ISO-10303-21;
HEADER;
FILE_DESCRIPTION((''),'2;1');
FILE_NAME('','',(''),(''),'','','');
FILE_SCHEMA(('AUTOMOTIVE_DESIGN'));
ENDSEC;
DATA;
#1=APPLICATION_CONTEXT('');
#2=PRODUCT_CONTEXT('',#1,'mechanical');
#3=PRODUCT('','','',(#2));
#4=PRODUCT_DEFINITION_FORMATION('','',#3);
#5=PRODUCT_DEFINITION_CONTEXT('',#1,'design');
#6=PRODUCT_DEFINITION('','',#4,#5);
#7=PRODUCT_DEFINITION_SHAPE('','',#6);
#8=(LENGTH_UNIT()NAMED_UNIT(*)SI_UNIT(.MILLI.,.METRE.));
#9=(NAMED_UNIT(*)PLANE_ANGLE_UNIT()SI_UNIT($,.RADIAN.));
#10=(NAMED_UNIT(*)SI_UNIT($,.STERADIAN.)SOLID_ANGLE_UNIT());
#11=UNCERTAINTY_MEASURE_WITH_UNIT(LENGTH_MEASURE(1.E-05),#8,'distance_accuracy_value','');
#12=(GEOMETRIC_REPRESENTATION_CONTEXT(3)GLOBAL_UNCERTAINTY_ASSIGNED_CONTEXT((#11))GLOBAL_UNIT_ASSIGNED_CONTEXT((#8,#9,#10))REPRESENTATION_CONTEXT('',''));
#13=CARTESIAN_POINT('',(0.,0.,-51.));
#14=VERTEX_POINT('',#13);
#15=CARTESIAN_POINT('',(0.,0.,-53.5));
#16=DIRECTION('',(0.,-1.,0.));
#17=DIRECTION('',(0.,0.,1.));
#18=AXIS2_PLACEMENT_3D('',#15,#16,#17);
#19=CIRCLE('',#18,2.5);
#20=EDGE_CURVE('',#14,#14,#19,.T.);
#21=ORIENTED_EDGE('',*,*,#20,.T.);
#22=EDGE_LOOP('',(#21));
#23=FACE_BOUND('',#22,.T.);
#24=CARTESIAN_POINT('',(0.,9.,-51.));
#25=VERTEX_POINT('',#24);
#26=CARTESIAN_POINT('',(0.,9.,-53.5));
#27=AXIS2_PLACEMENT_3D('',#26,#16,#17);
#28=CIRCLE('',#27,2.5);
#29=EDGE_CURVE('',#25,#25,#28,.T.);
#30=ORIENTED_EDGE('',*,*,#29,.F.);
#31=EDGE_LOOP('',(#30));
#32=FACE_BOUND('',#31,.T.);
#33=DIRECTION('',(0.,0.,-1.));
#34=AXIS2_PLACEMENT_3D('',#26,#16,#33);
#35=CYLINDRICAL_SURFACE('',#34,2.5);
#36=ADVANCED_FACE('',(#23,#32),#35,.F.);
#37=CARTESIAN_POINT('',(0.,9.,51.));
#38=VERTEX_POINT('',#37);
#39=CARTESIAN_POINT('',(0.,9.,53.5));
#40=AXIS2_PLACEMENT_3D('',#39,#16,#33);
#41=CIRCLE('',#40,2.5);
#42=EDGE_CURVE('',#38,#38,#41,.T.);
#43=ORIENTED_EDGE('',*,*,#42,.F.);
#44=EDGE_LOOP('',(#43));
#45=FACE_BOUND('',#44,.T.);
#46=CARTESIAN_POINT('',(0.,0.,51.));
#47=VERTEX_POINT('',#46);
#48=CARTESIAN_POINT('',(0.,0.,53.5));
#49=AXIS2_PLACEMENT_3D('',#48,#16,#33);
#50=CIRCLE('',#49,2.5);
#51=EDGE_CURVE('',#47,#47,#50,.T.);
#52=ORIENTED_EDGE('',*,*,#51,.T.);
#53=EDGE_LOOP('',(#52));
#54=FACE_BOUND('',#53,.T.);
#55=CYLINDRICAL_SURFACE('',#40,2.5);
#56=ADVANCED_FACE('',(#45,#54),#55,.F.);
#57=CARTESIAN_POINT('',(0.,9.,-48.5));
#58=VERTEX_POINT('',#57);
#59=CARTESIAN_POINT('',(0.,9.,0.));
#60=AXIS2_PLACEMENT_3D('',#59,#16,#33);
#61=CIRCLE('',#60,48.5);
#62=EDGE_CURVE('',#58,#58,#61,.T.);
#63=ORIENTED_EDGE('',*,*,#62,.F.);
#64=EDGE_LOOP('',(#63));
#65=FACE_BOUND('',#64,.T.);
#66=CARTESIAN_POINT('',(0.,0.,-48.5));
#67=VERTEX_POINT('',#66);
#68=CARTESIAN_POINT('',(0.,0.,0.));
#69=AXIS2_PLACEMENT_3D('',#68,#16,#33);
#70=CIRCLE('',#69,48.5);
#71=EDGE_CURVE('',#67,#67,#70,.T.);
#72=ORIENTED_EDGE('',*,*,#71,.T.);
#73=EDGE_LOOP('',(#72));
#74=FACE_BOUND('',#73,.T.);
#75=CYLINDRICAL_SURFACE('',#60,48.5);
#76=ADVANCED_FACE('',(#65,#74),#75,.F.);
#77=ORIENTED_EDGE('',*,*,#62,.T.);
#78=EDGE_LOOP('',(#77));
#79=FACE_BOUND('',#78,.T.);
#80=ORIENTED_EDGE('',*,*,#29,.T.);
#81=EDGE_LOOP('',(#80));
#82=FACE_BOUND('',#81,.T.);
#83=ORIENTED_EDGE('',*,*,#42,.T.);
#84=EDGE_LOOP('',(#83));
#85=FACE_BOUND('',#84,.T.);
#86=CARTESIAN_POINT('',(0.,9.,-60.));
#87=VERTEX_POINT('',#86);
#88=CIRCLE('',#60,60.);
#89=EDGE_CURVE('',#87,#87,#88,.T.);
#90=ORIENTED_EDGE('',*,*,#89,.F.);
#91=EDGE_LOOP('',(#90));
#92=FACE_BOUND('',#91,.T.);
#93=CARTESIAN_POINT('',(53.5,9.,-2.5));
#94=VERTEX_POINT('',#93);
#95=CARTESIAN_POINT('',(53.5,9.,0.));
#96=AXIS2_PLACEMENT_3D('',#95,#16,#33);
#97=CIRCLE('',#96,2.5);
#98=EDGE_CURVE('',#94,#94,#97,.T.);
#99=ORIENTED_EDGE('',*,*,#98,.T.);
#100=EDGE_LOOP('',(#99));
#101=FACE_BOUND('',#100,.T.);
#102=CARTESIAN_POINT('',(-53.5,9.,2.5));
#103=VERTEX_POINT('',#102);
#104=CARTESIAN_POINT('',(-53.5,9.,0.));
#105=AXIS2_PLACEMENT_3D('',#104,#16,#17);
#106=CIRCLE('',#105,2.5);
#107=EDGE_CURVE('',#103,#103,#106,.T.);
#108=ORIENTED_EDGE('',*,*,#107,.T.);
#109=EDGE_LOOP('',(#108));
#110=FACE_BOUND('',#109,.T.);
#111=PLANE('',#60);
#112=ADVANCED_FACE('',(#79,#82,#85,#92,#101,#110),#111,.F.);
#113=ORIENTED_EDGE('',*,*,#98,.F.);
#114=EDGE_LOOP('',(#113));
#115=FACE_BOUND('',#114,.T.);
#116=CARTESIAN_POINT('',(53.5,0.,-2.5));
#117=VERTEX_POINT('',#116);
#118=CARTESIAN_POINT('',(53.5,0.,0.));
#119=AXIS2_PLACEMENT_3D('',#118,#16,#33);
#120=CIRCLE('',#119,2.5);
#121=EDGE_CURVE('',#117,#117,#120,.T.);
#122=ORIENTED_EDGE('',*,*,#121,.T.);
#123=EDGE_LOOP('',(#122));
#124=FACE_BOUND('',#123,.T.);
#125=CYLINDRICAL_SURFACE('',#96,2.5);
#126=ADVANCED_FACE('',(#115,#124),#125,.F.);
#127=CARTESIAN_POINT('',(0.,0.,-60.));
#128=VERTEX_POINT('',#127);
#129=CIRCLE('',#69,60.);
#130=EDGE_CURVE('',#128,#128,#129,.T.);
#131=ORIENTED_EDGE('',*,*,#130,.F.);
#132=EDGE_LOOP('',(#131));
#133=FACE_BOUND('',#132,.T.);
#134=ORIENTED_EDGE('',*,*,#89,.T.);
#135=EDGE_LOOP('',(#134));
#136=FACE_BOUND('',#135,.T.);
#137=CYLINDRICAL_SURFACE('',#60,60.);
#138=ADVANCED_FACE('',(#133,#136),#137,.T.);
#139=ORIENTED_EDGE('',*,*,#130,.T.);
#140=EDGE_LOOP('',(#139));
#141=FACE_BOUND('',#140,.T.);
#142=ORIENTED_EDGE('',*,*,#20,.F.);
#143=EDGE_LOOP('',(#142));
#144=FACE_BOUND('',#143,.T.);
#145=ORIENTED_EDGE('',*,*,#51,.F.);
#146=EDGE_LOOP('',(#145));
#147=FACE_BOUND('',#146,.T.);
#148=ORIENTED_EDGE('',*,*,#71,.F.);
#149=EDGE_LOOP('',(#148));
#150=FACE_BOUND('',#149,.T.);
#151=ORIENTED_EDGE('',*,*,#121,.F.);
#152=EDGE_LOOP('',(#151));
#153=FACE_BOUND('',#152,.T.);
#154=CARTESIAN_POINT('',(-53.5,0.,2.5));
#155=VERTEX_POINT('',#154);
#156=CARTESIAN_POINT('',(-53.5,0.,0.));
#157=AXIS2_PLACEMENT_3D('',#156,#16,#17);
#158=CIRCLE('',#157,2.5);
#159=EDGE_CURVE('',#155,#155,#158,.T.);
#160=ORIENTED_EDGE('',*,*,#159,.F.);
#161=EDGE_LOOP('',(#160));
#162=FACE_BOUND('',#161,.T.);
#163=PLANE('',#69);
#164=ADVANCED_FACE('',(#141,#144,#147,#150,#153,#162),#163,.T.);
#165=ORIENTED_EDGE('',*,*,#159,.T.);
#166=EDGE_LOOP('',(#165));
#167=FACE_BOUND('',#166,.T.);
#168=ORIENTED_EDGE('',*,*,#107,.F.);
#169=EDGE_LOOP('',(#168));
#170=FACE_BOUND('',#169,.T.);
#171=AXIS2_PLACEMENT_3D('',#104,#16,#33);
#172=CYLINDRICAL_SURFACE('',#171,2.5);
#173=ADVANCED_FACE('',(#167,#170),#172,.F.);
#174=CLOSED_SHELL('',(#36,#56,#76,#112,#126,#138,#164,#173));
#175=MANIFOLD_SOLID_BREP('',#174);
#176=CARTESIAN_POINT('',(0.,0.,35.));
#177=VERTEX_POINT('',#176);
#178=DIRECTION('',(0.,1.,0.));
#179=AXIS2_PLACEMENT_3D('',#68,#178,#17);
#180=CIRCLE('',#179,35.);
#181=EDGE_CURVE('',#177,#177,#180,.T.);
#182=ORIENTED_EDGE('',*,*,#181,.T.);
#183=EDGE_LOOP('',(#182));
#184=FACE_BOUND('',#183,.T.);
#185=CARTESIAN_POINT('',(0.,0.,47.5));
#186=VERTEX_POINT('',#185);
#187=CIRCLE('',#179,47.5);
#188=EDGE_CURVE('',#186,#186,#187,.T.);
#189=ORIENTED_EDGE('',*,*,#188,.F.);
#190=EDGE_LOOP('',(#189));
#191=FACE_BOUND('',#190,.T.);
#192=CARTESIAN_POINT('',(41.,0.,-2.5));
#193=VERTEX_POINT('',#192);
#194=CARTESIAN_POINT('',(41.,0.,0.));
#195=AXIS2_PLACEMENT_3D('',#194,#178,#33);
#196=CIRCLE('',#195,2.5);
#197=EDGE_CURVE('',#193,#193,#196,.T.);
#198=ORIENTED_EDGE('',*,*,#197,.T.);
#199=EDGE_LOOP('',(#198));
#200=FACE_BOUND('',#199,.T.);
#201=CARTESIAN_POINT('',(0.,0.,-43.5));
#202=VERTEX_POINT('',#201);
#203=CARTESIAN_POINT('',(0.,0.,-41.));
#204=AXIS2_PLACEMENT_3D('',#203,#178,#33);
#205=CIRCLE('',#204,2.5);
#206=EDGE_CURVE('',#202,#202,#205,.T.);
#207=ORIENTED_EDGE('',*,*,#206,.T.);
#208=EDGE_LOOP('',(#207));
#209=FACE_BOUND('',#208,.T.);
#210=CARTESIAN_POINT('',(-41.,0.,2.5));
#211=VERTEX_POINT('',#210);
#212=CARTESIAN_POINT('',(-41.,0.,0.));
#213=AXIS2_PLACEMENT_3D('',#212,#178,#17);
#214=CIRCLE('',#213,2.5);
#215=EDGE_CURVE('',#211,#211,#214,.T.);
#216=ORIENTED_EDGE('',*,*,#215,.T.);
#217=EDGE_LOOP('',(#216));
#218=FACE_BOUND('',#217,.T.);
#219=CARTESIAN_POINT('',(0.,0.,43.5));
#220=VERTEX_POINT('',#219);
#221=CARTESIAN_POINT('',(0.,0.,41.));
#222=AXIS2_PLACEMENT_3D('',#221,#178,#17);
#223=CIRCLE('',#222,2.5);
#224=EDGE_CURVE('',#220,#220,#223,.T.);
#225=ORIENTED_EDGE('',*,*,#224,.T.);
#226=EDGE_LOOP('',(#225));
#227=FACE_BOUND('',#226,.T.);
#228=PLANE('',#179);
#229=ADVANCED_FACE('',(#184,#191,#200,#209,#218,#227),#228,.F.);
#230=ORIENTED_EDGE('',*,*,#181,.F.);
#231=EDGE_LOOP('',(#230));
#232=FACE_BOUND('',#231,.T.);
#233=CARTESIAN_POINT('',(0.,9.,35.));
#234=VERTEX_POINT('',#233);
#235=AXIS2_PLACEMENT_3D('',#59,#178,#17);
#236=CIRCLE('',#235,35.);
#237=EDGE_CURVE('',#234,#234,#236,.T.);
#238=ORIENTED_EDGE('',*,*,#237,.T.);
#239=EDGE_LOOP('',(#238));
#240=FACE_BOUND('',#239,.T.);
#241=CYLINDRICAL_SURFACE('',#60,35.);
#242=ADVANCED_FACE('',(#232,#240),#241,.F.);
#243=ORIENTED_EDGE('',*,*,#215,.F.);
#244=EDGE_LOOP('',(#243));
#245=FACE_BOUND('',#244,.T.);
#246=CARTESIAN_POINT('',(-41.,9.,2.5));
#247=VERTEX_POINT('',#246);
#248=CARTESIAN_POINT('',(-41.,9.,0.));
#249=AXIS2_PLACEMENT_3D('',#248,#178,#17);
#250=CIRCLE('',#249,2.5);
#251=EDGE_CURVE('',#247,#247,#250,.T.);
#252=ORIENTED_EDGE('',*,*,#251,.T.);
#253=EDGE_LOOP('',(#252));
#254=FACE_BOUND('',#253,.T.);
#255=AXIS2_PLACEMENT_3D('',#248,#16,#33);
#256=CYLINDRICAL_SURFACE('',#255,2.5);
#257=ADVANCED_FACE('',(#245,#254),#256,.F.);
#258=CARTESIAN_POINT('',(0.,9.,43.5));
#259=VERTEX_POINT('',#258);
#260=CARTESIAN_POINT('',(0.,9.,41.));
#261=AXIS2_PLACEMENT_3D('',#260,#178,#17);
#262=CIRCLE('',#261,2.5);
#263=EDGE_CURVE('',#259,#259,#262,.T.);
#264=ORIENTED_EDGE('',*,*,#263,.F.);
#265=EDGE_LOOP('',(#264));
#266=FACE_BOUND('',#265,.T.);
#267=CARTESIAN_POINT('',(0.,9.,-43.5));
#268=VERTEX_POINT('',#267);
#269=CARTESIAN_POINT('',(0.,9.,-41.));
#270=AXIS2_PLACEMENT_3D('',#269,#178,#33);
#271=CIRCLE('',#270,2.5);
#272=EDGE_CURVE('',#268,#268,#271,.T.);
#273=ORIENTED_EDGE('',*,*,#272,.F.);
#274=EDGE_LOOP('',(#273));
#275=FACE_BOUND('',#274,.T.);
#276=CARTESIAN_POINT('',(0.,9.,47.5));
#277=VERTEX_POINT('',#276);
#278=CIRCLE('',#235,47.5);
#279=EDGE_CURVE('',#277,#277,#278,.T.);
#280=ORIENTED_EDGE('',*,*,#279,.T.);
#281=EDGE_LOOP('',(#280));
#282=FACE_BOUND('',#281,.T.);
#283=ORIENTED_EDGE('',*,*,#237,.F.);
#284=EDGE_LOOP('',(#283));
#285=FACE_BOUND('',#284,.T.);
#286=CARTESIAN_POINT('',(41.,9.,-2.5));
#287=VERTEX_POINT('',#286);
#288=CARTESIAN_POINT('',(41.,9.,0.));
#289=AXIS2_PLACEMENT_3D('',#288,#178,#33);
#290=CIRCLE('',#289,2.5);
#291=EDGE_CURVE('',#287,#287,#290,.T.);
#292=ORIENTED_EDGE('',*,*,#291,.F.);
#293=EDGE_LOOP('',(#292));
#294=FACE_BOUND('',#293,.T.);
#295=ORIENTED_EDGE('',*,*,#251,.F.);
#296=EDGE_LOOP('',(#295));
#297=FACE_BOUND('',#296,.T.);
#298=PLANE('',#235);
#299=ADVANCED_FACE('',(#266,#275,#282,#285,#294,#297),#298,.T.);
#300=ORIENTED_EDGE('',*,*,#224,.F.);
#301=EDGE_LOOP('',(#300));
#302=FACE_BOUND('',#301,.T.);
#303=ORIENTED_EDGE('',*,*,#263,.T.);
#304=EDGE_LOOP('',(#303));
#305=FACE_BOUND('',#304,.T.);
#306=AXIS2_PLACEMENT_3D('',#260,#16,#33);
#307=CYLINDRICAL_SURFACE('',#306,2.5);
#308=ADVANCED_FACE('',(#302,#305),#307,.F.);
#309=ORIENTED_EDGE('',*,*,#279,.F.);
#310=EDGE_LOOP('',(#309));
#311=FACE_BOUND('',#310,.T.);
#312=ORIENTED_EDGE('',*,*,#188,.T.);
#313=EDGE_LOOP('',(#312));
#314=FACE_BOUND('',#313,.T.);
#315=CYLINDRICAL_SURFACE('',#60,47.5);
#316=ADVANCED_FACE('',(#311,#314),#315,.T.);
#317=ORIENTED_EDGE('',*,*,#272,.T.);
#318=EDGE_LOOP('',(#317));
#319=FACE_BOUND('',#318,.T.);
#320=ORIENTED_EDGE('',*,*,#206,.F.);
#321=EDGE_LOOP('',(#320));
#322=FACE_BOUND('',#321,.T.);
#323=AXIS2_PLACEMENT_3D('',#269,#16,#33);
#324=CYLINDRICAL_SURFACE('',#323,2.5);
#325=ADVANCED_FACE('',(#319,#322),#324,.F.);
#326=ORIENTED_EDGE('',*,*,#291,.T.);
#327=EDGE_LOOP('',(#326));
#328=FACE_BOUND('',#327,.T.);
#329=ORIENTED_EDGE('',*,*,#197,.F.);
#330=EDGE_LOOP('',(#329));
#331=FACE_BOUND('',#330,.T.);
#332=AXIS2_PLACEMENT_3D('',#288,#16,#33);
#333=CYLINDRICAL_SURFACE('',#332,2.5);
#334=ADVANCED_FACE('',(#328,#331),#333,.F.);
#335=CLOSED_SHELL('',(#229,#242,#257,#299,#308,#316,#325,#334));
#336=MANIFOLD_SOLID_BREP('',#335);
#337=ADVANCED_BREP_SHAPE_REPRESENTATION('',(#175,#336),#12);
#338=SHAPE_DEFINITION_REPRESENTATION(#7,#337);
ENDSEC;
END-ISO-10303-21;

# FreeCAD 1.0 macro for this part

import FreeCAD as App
import Part
import Sketcher

V = App.Vector
Q = App.Units.Quantity

doc = App.newDocument("Part")
body = doc.addObject("PartDesign::Body", "Body")

sketch1 = body.newObject("Sketcher::SketchObject", "Sketch")
sketch1.AttachmentSupport = (doc.getObject("XZ_Plane"), [""])
sketch1.MapMode = "FlatFace"
sketch1.addGeometry([
    Part.Circle(V(0, 0, 0), V(0, 0, 1), 47.5),
    Part.Circle(V(0, -41, 0), V(0, 0, 1), 2.5),
    Part.Circle(V(-41, 0, 0), V(0, 0, 1), 2.5),
    Part.Circle(V(41, 0, 0), V(0, 0, 1), 2.5),
    Part.Circle(V(0, 0, 0), V(0, 0, 1), 35),
    Part.Circle(V(0, 41, 0), V(0, 0, 1), 2.5),
], False)
sketch1.addConstraint([
    Sketcher.Constraint("Coincident", 0, 3, -1, 1),
    Sketcher.Constraint("Coincident", 4, 3, -1, 1),
    Sketcher.Constraint("Equal", 1, 2),
    Sketcher.Constraint("Equal", 2, 3),
    Sketcher.Constraint("Equal", 3, 5),
    Sketcher.Constraint("Symmetric", 2, 3, 3, 3, -1, 1),
    Sketcher.Constraint("Symmetric", 1, 3, 5, 3, -1, 1),
    Sketcher.Constraint("PointOnObject", 1, 3, -2),
    Sketcher.Constraint("PointOnObject", 2, 3, -1),
    Sketcher.Constraint("Diameter", 0, Q("95 mm")),
    Sketcher.Constraint("Diameter", 1, Q("5 mm")),
    Sketcher.Constraint("Diameter", 4, Q("70 mm")),
    Sketcher.Constraint("DistanceY", 1, 3, -1, 1, Q("41 mm")),
    Sketcher.Constraint("DistanceX", 2, 3, -1, 1, Q("41 mm")),
])
pad1 = body.newObject("PartDesign::Pad", "Pad")
pad1.Profile = sketch1
pad1.Length = 9
pad1.Reversed = True
body2 = doc.addObject("PartDesign::Body", "Body001")

sketch2 = body2.newObject("Sketcher::SketchObject", "Sketch001")
sketch2.AttachmentSupport = (doc.getObject("XZ_Plane001"), [""])
sketch2.MapMode = "FlatFace"
sketch2.addGeometry([
    Part.Circle(V(0, 0, 0), V(0, 0, 1), 60),
    Part.Circle(V(0, 53.5, 0), V(0, 0, 1), 2.5),
    Part.Circle(V(-53.5, 0, 0), V(0, 0, 1), 2.5),
    Part.Circle(V(53.5, 0, 0), V(0, 0, 1), 2.5),
    Part.Circle(V(0, 0, 0), V(0, 0, 1), 48.5),
    Part.Circle(V(0, -53.5, 0), V(0, 0, 1), 2.5),
], False)
sketch2.addConstraint([
    Sketcher.Constraint("Coincident", 0, 3, -1, 1),
    Sketcher.Constraint("Coincident", 4, 3, -1, 1),
    Sketcher.Constraint("Equal", 1, 2),
    Sketcher.Constraint("Equal", 2, 3),
    Sketcher.Constraint("Equal", 3, 5),
    Sketcher.Constraint("Symmetric", 2, 3, 3, 3, -1, 1),
    Sketcher.Constraint("Symmetric", 1, 3, 5, 3, -1, 1),
    Sketcher.Constraint("PointOnObject", 1, 3, -2),
    Sketcher.Constraint("PointOnObject", 2, 3, -1),
    Sketcher.Constraint("Diameter", 0, Q("120 mm")),
    Sketcher.Constraint("Diameter", 1, Q("5 mm")),
    Sketcher.Constraint("Diameter", 4, Q("97 mm")),
    Sketcher.Constraint("DistanceX", 2, 3, 3, 3, Q("107 mm")),
    Sketcher.Constraint("DistanceY", 5, 3, 1, 3, Q("107 mm")),
])
pad2 = body2.newObject("PartDesign::Pad", "Pad001")
pad2.Profile = sketch2
pad2.Length = 9
pad2.Reversed = True

doc.recompute()
